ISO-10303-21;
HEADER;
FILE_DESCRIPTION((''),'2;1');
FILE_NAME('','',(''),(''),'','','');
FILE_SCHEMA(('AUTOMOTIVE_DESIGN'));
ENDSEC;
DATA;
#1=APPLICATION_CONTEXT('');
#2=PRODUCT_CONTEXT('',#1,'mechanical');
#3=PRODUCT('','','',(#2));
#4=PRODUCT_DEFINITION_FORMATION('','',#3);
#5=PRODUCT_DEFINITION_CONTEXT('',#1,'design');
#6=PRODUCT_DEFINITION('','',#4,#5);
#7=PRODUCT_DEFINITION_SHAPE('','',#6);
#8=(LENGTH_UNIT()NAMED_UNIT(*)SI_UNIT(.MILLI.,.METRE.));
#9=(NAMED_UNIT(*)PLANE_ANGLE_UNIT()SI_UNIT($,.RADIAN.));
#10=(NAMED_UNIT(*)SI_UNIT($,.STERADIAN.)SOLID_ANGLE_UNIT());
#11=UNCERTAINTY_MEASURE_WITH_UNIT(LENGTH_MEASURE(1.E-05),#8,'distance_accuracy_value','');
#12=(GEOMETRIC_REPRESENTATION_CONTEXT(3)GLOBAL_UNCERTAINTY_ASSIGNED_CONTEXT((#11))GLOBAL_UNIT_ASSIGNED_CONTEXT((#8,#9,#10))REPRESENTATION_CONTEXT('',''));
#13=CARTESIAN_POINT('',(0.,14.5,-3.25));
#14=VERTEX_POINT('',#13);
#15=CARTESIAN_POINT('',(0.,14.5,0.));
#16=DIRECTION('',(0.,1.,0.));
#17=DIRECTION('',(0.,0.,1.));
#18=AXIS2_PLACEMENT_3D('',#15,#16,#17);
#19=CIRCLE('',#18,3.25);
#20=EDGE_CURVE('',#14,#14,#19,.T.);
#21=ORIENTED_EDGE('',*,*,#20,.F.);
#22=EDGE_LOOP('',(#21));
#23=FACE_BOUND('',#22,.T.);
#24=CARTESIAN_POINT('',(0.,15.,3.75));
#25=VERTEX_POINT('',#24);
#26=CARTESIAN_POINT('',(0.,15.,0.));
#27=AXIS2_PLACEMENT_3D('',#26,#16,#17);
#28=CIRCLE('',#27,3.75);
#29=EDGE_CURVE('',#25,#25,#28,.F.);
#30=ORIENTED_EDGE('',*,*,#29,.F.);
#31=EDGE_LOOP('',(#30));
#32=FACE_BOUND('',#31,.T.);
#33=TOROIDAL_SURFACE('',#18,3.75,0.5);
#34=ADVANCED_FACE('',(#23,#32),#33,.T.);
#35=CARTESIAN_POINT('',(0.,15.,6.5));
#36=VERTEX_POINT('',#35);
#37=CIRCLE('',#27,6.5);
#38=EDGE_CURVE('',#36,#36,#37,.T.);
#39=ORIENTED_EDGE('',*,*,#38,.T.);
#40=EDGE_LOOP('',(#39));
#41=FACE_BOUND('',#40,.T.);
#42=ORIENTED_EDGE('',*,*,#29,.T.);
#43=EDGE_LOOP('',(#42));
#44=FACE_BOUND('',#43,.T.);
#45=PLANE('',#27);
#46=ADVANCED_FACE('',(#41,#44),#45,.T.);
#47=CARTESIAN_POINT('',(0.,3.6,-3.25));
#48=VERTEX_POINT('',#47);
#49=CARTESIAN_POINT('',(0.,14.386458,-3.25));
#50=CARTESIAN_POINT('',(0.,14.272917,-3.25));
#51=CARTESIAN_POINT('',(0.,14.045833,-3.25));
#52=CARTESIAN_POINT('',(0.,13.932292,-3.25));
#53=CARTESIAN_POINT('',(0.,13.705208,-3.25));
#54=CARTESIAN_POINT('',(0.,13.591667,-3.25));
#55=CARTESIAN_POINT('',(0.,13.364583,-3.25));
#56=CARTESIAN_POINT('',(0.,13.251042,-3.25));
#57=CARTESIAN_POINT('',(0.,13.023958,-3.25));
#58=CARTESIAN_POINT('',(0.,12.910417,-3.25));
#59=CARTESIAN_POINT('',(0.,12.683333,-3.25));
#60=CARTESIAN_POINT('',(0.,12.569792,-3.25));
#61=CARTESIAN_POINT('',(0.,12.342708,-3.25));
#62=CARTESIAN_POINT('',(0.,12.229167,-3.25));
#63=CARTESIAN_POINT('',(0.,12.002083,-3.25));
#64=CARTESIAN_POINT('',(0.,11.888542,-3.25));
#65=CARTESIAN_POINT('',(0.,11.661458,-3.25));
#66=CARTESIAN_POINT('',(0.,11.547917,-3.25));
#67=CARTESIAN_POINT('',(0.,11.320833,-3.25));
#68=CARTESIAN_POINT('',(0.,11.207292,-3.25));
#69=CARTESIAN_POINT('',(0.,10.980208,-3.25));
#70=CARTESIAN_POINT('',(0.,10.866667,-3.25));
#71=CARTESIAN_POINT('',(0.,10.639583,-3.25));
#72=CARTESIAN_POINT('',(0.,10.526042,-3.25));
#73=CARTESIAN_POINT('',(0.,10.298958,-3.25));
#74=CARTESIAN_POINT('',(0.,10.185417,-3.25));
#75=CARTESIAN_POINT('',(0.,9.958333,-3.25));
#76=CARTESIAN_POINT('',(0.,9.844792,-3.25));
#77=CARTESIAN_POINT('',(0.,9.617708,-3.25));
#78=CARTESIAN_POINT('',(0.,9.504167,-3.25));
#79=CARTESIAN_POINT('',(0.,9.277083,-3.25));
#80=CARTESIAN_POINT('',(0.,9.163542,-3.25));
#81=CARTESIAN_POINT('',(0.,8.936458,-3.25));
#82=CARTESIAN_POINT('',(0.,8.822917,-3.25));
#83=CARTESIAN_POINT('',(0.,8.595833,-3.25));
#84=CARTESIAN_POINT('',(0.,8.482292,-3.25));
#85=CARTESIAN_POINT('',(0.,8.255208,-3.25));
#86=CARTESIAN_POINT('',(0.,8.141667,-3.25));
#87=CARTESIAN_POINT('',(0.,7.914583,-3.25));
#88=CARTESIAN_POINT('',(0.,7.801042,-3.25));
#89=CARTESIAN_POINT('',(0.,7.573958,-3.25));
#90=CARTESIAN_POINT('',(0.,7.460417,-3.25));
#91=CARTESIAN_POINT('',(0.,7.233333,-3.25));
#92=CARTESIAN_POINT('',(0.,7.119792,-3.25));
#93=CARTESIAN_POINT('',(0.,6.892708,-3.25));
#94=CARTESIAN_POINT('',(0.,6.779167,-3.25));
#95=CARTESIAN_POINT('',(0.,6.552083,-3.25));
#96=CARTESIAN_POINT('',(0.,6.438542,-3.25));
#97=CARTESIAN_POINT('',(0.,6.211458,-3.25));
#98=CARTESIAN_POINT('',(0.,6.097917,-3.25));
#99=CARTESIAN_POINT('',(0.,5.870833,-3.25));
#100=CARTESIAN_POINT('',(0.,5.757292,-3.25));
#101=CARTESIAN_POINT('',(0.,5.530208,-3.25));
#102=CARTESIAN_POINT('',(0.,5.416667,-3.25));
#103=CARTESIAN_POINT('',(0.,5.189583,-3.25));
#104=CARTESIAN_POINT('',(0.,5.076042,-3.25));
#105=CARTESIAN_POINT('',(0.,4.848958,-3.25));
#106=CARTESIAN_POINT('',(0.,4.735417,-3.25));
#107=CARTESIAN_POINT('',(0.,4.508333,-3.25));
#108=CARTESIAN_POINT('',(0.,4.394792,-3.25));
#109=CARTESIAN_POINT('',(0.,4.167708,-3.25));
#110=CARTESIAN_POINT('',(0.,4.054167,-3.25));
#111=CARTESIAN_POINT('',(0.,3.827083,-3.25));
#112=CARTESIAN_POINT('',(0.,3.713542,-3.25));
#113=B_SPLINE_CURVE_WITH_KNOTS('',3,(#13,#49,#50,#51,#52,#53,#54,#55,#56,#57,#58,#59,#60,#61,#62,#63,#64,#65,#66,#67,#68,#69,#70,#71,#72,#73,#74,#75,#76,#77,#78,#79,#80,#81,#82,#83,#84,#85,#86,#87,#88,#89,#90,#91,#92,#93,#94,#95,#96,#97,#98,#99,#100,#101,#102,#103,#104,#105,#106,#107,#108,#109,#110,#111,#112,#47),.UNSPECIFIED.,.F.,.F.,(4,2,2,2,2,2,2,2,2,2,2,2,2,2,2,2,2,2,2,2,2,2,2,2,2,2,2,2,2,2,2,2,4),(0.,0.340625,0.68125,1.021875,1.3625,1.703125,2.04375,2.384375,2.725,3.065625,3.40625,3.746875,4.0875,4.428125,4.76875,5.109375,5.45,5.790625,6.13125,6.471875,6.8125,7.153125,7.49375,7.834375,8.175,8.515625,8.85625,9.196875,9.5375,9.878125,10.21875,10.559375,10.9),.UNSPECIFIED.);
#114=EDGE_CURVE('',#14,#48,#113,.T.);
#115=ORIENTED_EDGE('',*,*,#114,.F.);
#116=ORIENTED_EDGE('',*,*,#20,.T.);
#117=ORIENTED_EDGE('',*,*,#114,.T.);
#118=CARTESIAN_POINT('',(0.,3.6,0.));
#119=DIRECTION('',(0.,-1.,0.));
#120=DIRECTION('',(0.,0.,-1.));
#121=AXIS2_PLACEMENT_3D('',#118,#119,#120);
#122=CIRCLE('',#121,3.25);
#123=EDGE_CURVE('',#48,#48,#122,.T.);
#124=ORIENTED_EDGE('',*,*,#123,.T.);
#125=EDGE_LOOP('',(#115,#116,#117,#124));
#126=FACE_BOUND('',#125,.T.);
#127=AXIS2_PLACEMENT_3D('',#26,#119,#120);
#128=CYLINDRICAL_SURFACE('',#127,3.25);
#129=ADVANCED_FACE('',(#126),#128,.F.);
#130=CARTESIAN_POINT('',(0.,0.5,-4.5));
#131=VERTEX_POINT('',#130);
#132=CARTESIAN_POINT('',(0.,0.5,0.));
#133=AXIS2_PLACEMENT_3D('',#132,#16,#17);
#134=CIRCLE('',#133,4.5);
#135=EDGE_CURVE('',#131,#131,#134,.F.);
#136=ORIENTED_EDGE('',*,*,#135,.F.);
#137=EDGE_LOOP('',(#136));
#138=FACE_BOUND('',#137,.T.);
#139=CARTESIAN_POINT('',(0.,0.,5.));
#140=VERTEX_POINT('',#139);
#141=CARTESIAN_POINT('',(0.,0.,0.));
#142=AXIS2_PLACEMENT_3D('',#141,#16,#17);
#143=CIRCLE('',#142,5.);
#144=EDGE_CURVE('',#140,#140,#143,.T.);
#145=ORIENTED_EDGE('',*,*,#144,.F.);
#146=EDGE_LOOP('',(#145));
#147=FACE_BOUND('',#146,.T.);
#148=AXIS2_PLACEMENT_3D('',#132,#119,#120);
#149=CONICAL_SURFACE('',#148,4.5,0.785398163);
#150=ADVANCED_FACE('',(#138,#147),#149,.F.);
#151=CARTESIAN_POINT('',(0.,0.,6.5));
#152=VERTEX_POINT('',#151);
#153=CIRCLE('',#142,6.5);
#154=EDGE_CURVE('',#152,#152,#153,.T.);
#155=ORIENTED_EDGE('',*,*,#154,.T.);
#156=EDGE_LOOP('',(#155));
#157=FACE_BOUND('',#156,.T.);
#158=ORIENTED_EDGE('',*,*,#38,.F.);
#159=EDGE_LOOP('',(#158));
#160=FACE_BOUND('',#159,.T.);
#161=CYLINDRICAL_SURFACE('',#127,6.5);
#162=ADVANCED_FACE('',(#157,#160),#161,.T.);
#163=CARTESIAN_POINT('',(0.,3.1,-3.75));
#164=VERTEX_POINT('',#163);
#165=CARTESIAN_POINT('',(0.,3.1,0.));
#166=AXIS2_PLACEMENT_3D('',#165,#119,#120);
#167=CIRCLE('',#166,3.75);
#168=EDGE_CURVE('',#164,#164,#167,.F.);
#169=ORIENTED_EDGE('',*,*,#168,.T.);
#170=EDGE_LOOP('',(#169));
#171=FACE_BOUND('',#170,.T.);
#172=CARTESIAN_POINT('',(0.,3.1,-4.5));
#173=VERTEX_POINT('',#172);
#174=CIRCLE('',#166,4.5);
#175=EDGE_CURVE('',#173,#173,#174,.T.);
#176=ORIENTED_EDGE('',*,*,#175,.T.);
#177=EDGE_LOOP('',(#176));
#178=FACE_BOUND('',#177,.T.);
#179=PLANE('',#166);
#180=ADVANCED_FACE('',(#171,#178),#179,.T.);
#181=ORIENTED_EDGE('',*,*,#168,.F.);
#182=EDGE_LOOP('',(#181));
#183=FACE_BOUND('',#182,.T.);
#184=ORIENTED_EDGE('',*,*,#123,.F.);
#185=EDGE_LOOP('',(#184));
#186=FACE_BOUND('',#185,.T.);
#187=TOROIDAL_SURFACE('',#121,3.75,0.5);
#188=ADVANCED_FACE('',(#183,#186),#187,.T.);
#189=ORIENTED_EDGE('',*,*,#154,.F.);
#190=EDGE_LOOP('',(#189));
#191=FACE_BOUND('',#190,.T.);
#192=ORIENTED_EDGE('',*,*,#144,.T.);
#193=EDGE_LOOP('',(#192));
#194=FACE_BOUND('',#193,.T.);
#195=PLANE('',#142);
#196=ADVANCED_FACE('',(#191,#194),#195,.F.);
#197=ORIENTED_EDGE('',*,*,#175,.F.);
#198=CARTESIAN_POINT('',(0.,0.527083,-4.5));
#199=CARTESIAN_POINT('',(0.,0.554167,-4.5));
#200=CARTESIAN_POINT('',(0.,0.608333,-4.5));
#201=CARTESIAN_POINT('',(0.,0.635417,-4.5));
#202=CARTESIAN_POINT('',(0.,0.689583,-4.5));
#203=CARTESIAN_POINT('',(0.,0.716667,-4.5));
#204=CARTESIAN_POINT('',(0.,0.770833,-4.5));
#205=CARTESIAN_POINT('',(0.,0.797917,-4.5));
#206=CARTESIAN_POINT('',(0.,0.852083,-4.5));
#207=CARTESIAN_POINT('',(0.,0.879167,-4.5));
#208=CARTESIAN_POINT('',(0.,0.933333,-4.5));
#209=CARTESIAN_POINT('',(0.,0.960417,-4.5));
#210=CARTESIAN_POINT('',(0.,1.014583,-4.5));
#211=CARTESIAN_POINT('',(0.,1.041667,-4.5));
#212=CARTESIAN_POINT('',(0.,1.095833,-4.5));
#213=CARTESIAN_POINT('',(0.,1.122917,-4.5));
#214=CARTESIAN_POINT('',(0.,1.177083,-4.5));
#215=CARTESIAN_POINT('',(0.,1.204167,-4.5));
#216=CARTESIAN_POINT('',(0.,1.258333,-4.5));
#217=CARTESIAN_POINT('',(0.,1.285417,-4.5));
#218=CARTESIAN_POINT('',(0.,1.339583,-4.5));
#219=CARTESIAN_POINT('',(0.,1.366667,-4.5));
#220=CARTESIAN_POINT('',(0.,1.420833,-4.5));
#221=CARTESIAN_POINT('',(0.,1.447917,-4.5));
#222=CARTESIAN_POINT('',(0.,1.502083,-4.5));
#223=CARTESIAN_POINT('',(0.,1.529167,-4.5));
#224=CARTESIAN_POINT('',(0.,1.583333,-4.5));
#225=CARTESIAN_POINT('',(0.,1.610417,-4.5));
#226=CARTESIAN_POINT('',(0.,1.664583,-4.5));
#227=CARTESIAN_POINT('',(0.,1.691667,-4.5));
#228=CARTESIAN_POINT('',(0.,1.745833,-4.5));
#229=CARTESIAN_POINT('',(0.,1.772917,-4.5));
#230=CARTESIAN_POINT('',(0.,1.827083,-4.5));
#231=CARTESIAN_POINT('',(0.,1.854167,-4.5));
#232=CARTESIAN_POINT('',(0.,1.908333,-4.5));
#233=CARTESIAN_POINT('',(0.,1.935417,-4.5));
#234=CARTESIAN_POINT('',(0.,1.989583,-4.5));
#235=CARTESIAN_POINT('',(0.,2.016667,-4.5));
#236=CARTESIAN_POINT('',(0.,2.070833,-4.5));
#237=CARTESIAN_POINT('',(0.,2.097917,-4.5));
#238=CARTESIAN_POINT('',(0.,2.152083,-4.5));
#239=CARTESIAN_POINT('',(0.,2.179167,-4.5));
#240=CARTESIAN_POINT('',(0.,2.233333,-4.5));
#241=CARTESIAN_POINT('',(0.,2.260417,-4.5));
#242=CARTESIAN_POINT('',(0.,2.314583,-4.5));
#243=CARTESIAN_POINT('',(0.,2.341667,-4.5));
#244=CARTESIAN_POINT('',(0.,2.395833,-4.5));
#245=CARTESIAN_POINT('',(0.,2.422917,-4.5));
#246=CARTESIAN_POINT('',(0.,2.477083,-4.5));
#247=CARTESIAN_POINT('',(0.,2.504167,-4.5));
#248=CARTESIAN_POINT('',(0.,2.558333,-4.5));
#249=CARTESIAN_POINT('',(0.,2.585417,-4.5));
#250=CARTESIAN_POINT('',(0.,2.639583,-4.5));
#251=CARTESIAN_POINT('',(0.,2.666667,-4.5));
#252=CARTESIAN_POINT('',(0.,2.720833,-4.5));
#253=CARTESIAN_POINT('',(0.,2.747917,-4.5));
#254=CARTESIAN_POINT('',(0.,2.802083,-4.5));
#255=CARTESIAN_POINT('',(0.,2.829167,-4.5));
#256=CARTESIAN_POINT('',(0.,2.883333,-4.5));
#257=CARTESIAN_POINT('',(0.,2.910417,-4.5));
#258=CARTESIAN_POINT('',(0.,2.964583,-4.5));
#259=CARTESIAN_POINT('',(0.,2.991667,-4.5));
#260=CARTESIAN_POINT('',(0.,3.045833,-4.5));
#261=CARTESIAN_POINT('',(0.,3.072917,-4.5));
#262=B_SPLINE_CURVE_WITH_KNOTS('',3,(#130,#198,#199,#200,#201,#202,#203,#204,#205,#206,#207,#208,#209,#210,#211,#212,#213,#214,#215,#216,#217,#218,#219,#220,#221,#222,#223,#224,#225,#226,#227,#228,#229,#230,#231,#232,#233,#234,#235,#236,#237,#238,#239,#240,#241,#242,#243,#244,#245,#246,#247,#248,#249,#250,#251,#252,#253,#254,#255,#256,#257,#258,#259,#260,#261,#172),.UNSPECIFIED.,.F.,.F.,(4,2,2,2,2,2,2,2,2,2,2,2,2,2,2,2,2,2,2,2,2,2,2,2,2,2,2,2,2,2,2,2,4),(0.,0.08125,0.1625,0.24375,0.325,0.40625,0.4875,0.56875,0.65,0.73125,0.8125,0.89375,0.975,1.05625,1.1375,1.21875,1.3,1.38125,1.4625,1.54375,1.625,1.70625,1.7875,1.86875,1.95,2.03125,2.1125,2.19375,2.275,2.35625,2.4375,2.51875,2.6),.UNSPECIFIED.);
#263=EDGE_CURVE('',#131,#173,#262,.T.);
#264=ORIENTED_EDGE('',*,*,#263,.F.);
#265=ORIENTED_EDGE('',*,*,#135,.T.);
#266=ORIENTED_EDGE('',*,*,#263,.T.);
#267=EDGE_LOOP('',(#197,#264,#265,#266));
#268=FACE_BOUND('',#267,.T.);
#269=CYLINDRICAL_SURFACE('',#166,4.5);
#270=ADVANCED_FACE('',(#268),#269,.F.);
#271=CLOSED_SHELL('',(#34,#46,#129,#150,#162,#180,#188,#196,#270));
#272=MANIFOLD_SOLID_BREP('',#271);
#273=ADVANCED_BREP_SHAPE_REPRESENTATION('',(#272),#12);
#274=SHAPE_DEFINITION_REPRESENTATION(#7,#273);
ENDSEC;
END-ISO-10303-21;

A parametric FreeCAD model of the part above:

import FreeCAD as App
import Part
import Sketcher

V = App.Vector
Q = App.Units.Quantity


def edges_at(feature, points):
    """Names of the edges that pass closest to the given points."""
    edges = feature.Shape.Edges
    near = lambda p: min(range(len(edges)), key=lambda i: edges[i].distToShape(Part.Vertex(*p))[0])
    return sorted({f"Edge{near(p) + 1}" for p in points})

doc = App.newDocument("Part")
body = doc.addObject("PartDesign::Body", "Body")

sketch1 = body.newObject("Sketcher::SketchObject", "Sketch")
sketch1.AttachmentSupport = (doc.getObject("XZ_Plane"), [""])
sketch1.MapMode = "FlatFace"
sketch1.addGeometry(Part.Circle(V(0, 0, 0), V(0, 0, 1), 6), False)
sketch1.addConstraint([
    Sketcher.Constraint("Coincident", 0, 3, -1, 1),
    Sketcher.Constraint("Diameter", 0, Q("13 mm")),
])
pad1 = body.newObject("PartDesign::Pad", "Pad")
pad1.Profile = sketch1
pad1.Length = 15
pad1.Reversed = True

sketch2 = body.newObject("Sketcher::SketchObject", "Sketch001")
sketch2.AttachmentSupport = (doc.getObject("XZ_Plane"), [""])
sketch2.MapMode = "FlatFace"
sketch2.addGeometry(Part.Circle(V(0, 0, 0), V(0, 0, 1), 4.5), False)
sketch2.addConstraint([
    Sketcher.Constraint("Coincident", 0, 3, -1, 1),
    Sketcher.Constraint("Diameter", 0, Q("9 mm")),
])
pocket1 = body.newObject("PartDesign::Pocket", "Pocket")
pocket1.Profile = sketch2
pocket1.Length = 3.1

sketch3 = body.newObject("Sketcher::SketchObject", "Sketch002")
sketch3.AttachmentSupport = (doc.getObject("XZ_Plane"), [""])
sketch3.MapMode = "FlatFace"
sketch3.AttachmentOffset = App.Placement(V(0, 0, -3.1), App.Rotation())
sketch3.addGeometry(Part.Circle(V(0, 0, 0), V(0, 0, 1), 3.2), False)
sketch3.addConstraint([
    Sketcher.Constraint("Coincident", 0, 3, -1, 1),
    Sketcher.Constraint("Diameter", 0, Q("6.5 mm")),
])
pocket2 = body.newObject("PartDesign::Pocket", "Pocket001")
pocket2.Profile = sketch3
pocket2.Type = "ThroughAll"
doc.recompute()

chamfer = body.newObject("PartDesign::Chamfer", "Chamfer")
chamfer.Base = (pocket2, edges_at(pocket2, [(0, 0, 4.5)]))
chamfer.Size = 0.5
doc.recompute()

fillet = body.newObject("PartDesign::Fillet", "Fillet")
fillet.Base = (chamfer, edges_at(chamfer, [(0, 3.1, 3.25)]))
fillet.Radius = 0.5
doc.recompute()

fillet2 = body.newObject("PartDesign::Fillet", "Fillet001")
fillet2.Base = (fillet, edges_at(fillet, [(0, 15, 3.25)]))
fillet2.Radius = 0.5

doc.recompute()
